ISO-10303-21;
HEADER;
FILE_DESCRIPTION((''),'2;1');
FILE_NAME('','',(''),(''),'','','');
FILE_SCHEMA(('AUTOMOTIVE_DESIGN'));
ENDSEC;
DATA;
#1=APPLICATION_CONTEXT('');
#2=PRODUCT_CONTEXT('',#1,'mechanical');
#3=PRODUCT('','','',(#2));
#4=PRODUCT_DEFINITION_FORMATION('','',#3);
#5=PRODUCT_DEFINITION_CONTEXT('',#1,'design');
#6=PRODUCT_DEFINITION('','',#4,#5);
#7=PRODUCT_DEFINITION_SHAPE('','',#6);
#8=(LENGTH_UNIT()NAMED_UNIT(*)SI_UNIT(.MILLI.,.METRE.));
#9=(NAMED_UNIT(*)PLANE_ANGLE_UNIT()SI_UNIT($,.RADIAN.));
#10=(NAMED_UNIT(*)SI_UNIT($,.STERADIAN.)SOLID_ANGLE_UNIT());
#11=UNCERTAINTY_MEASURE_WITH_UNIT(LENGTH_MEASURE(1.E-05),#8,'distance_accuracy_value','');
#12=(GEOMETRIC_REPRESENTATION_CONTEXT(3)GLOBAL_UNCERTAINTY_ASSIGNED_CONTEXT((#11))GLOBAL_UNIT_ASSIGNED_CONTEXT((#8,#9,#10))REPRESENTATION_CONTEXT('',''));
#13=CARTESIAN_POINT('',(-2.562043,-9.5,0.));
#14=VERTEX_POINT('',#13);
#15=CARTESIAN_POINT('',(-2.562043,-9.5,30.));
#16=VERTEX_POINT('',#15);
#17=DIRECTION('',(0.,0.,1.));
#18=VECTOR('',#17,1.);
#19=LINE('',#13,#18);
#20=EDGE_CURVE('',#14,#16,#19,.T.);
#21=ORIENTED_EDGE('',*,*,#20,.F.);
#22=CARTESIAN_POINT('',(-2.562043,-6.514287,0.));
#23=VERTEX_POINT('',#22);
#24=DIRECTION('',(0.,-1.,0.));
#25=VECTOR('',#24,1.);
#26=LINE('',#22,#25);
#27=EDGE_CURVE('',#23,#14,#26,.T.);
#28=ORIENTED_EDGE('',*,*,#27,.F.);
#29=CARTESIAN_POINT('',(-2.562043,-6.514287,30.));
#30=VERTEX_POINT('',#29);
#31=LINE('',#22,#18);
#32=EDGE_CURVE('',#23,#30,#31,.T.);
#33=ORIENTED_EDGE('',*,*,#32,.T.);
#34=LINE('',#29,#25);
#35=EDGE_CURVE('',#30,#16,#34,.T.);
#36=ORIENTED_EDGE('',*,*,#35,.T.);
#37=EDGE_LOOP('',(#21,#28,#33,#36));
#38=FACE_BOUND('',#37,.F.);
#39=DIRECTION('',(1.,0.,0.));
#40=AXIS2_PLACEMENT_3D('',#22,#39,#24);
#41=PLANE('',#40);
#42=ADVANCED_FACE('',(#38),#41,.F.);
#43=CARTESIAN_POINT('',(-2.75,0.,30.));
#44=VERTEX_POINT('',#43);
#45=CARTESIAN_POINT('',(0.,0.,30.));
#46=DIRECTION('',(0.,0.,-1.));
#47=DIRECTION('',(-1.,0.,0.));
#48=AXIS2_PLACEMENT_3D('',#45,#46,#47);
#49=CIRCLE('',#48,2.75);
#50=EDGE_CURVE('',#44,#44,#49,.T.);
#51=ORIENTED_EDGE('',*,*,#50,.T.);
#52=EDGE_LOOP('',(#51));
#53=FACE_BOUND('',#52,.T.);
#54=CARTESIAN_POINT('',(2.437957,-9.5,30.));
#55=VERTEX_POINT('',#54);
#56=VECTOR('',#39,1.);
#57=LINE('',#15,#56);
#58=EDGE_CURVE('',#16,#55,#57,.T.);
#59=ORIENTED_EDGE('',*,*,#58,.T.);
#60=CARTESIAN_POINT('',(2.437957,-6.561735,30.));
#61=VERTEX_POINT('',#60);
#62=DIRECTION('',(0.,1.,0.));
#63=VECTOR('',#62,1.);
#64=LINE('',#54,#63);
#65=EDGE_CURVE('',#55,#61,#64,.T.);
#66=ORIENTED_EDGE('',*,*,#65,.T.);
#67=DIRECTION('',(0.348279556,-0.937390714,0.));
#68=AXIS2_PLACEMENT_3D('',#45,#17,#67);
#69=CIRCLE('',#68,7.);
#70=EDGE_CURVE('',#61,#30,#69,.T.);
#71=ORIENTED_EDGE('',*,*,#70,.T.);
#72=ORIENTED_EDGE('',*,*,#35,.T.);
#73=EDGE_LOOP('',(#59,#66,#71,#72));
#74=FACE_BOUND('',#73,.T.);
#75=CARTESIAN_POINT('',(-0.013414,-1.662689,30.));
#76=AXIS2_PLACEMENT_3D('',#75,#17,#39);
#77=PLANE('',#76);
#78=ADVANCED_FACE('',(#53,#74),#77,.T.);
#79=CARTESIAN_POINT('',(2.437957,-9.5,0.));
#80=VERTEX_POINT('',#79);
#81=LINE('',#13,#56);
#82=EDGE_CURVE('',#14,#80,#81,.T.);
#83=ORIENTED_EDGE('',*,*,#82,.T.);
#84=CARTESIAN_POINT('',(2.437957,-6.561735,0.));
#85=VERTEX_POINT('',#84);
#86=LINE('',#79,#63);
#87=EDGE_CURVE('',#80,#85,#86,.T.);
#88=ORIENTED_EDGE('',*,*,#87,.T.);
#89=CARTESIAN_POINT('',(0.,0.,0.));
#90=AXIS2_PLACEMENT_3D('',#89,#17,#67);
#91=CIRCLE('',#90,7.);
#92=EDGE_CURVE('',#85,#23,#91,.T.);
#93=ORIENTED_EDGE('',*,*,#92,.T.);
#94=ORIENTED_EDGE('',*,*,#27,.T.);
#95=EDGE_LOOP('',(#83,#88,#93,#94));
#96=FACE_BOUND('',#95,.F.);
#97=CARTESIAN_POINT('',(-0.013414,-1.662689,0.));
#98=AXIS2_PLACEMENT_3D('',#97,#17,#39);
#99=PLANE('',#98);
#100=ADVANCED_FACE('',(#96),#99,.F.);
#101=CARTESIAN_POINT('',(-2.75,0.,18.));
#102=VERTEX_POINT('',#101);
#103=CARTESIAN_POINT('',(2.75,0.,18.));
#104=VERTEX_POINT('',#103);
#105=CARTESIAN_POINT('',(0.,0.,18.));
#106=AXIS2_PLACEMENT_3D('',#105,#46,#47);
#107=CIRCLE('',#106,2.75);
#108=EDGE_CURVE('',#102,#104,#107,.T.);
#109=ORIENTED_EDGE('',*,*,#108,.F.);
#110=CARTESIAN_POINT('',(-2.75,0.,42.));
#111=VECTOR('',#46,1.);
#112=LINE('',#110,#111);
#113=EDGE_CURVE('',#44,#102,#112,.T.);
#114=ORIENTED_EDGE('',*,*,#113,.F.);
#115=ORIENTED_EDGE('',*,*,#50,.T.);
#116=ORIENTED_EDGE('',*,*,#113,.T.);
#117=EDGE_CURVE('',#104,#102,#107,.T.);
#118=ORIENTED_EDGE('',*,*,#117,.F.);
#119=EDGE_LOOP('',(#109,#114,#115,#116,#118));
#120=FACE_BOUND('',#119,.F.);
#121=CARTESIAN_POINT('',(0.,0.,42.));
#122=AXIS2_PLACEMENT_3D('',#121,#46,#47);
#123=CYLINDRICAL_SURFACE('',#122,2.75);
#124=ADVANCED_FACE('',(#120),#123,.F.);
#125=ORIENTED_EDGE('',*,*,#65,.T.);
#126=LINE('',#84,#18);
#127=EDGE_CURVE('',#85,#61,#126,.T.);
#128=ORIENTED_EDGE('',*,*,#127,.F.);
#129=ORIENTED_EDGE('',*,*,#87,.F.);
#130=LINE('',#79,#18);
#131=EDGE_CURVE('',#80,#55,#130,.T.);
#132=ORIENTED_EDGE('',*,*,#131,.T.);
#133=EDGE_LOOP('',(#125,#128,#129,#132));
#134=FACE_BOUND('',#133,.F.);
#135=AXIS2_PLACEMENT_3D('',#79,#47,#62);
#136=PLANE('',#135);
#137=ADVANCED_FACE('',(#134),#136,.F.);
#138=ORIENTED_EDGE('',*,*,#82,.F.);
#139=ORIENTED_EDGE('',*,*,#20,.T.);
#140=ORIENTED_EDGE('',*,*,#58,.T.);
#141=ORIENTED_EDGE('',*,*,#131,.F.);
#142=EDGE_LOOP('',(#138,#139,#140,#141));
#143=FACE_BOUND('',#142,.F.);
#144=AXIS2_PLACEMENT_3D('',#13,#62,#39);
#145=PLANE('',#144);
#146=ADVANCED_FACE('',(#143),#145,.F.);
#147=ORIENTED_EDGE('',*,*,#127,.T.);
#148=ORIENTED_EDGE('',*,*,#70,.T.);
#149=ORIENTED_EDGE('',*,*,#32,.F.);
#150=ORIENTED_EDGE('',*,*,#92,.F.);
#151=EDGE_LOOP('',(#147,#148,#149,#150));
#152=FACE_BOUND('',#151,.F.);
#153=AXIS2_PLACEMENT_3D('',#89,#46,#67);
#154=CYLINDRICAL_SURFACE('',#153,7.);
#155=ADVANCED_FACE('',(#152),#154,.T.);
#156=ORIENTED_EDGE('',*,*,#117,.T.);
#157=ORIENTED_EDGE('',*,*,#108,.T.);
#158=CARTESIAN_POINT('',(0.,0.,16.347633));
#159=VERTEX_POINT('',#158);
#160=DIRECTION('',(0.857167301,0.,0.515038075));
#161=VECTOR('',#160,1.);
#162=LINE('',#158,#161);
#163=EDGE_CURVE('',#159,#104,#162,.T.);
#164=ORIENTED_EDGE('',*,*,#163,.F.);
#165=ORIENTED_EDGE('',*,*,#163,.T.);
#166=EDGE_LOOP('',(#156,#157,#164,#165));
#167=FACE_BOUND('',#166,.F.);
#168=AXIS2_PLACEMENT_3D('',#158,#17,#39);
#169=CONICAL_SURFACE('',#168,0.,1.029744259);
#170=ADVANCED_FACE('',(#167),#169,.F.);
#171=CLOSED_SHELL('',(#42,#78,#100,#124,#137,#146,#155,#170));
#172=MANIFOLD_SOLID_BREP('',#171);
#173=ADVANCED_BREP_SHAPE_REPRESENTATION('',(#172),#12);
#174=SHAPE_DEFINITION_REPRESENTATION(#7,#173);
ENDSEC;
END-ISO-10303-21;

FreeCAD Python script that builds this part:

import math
import FreeCAD as App
import Part
import Sketcher
from FreeCAD import Vector

doc = App.newDocument("Part")
body = doc.addObject("PartDesign::Body", "Body")

sketch1 = body.newObject("Sketcher::SketchObject", "Sketch")
sketch1.AttachmentSupport = (doc.getObject("XY_Plane"), [""])
sketch1.MapMode = "FlatFace"
sketch1.addGeometry([
    Part.LineSegment(Vector(2.4, -9.5, 0), Vector(2.4, -6.6, 0)),
    Part.ArcOfCircle(Part.Circle(Vector(0, 0, 0), Vector(0, 0, 1), 7), math.radians(-70), math.radians(249)),
    Part.LineSegment(Vector(-2.6, -6.5, 0), Vector(-2.6, -9.5, 0)),
    Part.LineSegment(Vector(-2.6, -9.5, 0), Vector(2.4, -9.5, 0)),
], False)
sketch1.addConstraint([
    Sketcher.Constraint("Coincident", 0, 2, 1, 1),
    Sketcher.Constraint("Coincident", 1, 2, 2, 1),
    Sketcher.Constraint("Coincident", 2, 2, 3, 1),
    Sketcher.Constraint("Coincident", 3, 2, 0, 1),
    Sketcher.Constraint("Vertical", 0),
    Sketcher.Constraint("Vertical", 2),
    Sketcher.Constraint("Horizontal", 3),
    Sketcher.Constraint("Coincident", 1, 3, -1, 1),
    Sketcher.Constraint("Radius", 1, 7.0),
    Sketcher.Constraint("DistanceX", 3, 1, 3, 2, 5.0),
    Sketcher.Constraint("DistanceY", 2, 2, -1, 1, 9.5),
    Sketcher.Constraint("DistanceY", 0, 1, 0, 2, 2.938265),
])
pad1 = body.newObject("PartDesign::Pad", "Pad")
pad1.Profile = sketch1
pad1.Length = 30

sketch2 = body.newObject("Sketcher::SketchObject", "Sketch001")
sketch2.AttachmentSupport = (doc.getObject("XY_Plane"), [""])
sketch2.MapMode = "FlatFace"
sketch2.AttachmentOffset = App.Placement(Vector(0, 0, 30), App.Rotation())
sketch2.addGeometry(Part.Circle(Vector(0, 0, 0), Vector(0, 0, 1), 2.8), False)
sketch2.addConstraint([
    Sketcher.Constraint("Coincident", 0, 3, -1, 1),
    Sketcher.Constraint("Diameter", 0, 5.5),
])
doc.recompute()
hole = body.newObject("PartDesign::Hole", "Hole")
hole.Profile = sketch2
hole.ThreadType = "None"
hole.Diameter = 5.5
hole.DepthType = "Dimension"
hole.Depth = 12
hole.DrillPoint = "Angled"
hole.DrillPointAngle = 118

doc.recompute()
